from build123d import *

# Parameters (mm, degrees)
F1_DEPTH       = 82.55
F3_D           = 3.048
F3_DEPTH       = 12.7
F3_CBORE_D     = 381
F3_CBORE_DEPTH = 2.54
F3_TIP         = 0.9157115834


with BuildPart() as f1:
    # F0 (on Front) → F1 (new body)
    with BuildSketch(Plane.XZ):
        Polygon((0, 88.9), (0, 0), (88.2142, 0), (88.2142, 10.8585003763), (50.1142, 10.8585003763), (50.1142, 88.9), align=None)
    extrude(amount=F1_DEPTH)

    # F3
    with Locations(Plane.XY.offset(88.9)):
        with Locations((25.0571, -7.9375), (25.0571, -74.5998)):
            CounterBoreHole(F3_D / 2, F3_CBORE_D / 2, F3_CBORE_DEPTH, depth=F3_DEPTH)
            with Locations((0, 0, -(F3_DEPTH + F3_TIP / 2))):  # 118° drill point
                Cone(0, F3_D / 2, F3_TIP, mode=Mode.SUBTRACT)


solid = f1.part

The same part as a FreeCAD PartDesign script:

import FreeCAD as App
import Part
import Sketcher
Q = App.Units.Quantity


def add_polygon(sketch, points):
    """Adds a closed chain of lines whose ends are joined by coincident constraints."""
    first, n = sketch.GeometryCount, len(points)
    for a, b in zip(points, points[1:] + points[:1]):
        sketch.addGeometry(Part.LineSegment(App.Vector(*a, 0), App.Vector(*b, 0)), False)
    for i in range(n):
        sketch.addConstraint(Sketcher.Constraint("Coincident", first + i, 2, first + (i + 1) % n, 1))

doc = App.newDocument("Part")
body = doc.addObject("PartDesign::Body", "Body")

sketch1 = body.newObject("Sketcher::SketchObject", "Sketch")
sketch1.AttachmentSupport = (doc.getObject("XZ_Plane"), [""])
sketch1.MapMode = "FlatFace"
add_polygon(sketch1, [(0, 89), (0, 0), (88, 0), (88, 11), (50, 11), (50, 89)])
sketch1.addConstraint(Sketcher.Constraint("Vertical", 0))
sketch1.addConstraint(Sketcher.Constraint("Horizontal", 1))
sketch1.addConstraint(Sketcher.Constraint("Vertical", 2))
sketch1.addConstraint(Sketcher.Constraint("Horizontal", 3))
sketch1.addConstraint(Sketcher.Constraint("Vertical", 4))
sketch1.addConstraint(Sketcher.Constraint("Horizontal", 5))
sketch1.addConstraint(Sketcher.Constraint("Coincident", 0, 2, -1, 1))
sketch1.addConstraint(Sketcher.Constraint("DistanceX", 3, 2, 3, 1, Q("1.5 in")))
sketch1.addConstraint(Sketcher.Constraint("DistanceY", 0, 2, 0, 1, Q("3.5 in")))
sketch1.addConstraint(Sketcher.Constraint("DistanceX", 1, 1, 1, 2, Q("3.473 in")))
sketch1.addConstraint(Sketcher.Constraint("DistanceY", 2, 1, 2, 2, Q("0.4275 in")))
pad1 = body.newObject("PartDesign::Pad", "Pad")
pad1.Profile = sketch1
pad1.Length = Q("3.25 in")

sketch2 = body.newObject("Sketcher::SketchObject", "Sketch001")
sketch2.AttachmentSupport = (doc.getObject("XY_Plane"), [""])
sketch2.MapMode = "FlatFace"
sketch2.AttachmentOffset = App.Placement(App.Vector(0, 0, 3.5 * 25.4), App.Rotation())
sketch2.addGeometry(Part.Circle(App.Vector(25.1, -7.9, 0), App.Vector(0, 0, 1), 1.5), False)
sketch2.addGeometry(Part.Circle(App.Vector(25.1, -74.6, 0), App.Vector(0, 0, 1), 1.5), False)
sketch2.addConstraint(Sketcher.Constraint("Equal", 0, 1))
sketch2.addConstraint(Sketcher.Constraint("Vertical", 0, 3, 1, 3))
sketch2.addConstraint(Sketcher.Constraint("Diameter", 0, Q("0.12 in")))
sketch2.addConstraint(Sketcher.Constraint("DistanceY", 0, 3, -1, 1, Q("0.3125 in")))
sketch2.addConstraint(Sketcher.Constraint("DistanceY", 1, 3, -1, 1, Q("2.937 in")))
sketch2.addConstraint(Sketcher.Constraint("DistanceX", -1, 1, 0, 3, Q("0.9865 in")))
doc.recompute()
hole = body.newObject("PartDesign::Hole", "Hole")
hole.Profile = sketch2
hole.ThreadType = "None"
hole.Diameter = Q("0.12 in")
hole.DepthType = "Dimension"
hole.Depth = Q("0.5 in")
hole.DrillPoint = "Angled"
hole.DrillPointAngle = 118
hole.HoleCutType = "Counterbore"
hole.HoleCutDiameter = Q("15 in")
hole.HoleCutDepth = Q("0.1 in")

doc.recompute()
